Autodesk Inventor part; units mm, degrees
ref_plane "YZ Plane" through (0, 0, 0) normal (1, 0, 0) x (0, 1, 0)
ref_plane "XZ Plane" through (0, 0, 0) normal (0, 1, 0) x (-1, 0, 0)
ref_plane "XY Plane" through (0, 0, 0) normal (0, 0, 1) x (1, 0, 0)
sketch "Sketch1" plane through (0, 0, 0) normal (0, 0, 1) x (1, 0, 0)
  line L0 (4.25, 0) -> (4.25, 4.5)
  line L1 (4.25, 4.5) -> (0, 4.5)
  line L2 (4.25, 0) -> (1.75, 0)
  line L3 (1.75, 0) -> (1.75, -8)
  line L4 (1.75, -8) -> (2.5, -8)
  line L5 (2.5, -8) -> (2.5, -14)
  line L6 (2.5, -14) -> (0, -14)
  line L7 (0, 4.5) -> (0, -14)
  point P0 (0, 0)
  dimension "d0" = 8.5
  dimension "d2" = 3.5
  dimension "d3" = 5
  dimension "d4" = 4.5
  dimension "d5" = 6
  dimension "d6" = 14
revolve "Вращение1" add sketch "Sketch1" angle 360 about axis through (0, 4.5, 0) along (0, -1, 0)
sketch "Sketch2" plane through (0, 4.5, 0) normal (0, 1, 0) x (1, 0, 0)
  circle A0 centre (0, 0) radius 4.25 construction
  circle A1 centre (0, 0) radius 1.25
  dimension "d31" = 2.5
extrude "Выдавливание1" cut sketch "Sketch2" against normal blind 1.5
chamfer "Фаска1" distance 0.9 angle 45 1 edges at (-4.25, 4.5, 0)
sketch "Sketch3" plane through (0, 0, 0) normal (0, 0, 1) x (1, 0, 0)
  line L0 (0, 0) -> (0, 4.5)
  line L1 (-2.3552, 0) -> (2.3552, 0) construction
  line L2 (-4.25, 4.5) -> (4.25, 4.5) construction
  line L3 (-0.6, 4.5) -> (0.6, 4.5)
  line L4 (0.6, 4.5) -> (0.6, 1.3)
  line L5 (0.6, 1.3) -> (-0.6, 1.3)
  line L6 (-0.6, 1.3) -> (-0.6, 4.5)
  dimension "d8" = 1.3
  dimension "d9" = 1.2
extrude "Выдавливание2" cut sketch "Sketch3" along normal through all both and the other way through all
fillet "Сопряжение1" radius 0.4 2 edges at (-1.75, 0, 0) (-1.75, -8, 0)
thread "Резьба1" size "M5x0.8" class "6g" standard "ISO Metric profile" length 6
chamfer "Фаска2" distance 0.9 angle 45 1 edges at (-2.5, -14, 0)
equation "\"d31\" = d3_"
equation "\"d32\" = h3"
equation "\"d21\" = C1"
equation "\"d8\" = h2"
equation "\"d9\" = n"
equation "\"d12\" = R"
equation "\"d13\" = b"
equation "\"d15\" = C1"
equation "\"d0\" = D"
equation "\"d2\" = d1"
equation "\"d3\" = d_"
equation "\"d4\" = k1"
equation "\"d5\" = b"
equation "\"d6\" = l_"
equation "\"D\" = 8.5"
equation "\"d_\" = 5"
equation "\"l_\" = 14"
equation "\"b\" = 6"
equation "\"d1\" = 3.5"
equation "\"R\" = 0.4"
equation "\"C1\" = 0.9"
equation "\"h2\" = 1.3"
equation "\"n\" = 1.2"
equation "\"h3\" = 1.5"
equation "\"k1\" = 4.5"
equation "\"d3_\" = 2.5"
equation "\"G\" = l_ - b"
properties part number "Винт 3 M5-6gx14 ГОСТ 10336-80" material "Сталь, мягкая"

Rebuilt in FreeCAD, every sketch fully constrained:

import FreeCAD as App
import Part
import Sketcher

V = App.Vector


def edges_at(feature, points):
    """Names of the edges that pass closest to the given points."""
    edges = feature.Shape.Edges
    near = lambda p: min(range(len(edges)), key=lambda i: edges[i].distToShape(Part.Vertex(*p))[0])
    return sorted({f"Edge{near(p) + 1}" for p in points})


def add_polygon(sketch, points):
    """Adds a closed chain of lines whose ends are joined by coincident constraints."""
    first, n = sketch.GeometryCount, len(points)
    for a, b in zip(points, points[1:] + points[:1]):
        sketch.addGeometry(Part.LineSegment(App.Vector(*a, 0), App.Vector(*b, 0)), False)
    for i in range(n):
        sketch.addConstraint(Sketcher.Constraint("Coincident", first + i, 2, first + (i + 1) % n, 1))

doc = App.newDocument("Part")
params = doc.addObject("Spreadsheet::Sheet", "Params")
for row, (alias, value) in enumerate([
    ("sketch1_height", "6 mm"),
    ("sketch1_height2", "4.5 mm"),
    ("sketch1_width", "2.5 mm"),
    ("sketch1_width2", "4.25 mm"),
    ("revolution_angle", "360 deg"),
    ("sketch2_diameter", "2.5 mm"),
    ("pocket1_length", "1.5 mm"),
    ("chamfer_size", "0.9 mm"),
    ("sketch3_width", "1.2 mm"),
    ("sketch3_height", "3.2 mm"),
    ("fillet_radius", "0.4 mm"),
    ("chamfer2_size", "0.9 mm"),
], start=1):
    params.set(f"A{row}", alias)
    params.set(f"B{row}", "=" + value)
    params.setAlias(f"B{row}", alias)

body = doc.addObject("PartDesign::Body", "Body")

# Sketch on XY plane
sketch1 = body.newObject("Sketcher::SketchObject", "Sketch")
sketch1.AttachmentSupport = (doc.getObject("XY_Plane"), [""])
sketch1.MapMode = "FlatFace"
add_polygon(sketch1, [(1.75, 0), (4.25, 0), (4.25, 4.5), (0, 4.5), (0, -14), (2.5, -14), (2.5, -8), (1.75, -8)])  # lines 0-7
sketch1.addConstraint(Sketcher.Constraint("Horizontal", 0))
sketch1.addConstraint(Sketcher.Constraint("Vertical", 1))
sketch1.addConstraint(Sketcher.Constraint("Horizontal", 2))
sketch1.addConstraint(Sketcher.Constraint("Vertical", 3))
sketch1.addConstraint(Sketcher.Constraint("Horizontal", 4))
sketch1.addConstraint(Sketcher.Constraint("Vertical", 5))
sketch1.addConstraint(Sketcher.Constraint("Horizontal", 6))
sketch1.addConstraint(Sketcher.Constraint("Vertical", 7))
sketch1.addConstraint(Sketcher.Constraint("PointOnObject", 0, 2, -1))
sketch1.addConstraint(Sketcher.Constraint("PointOnObject", 2, 2, -2))
sketch1.addConstraint(Sketcher.Constraint("Equal", 0, 4))
sketch1.addConstraint(Sketcher.Constraint("DistanceY", 5, 1, 5, 2, 6.0))
sketch1.addConstraint(Sketcher.Constraint("DistanceY", 1, 1, 1, 2, 4.5))
sketch1.addConstraint(Sketcher.Constraint("DistanceY", 3, 2, -1, 1, 14.0))
sketch1.addConstraint(Sketcher.Constraint("DistanceX", 0, 1, 0, 2, 2.5))
sketch1.addConstraint(Sketcher.Constraint("DistanceX", 2, 2, 2, 1, 4.25))
sketch1.setExpression("Constraints[19]", "Params.sketch1_height")
sketch1.setExpression("Constraints[20]", "Params.sketch1_height2")
sketch1.setExpression("Constraints[22]", "Params.sketch1_width")
sketch1.setExpression("Constraints[23]", "Params.sketch1_width2")
revolution = body.newObject("PartDesign::Revolution", "Revolution")
revolution.Profile = sketch1
revolution.ReferenceAxis = (sketch1, ["V_Axis"])
revolution.setExpression("Angle", "Params.revolution_angle")

# Sketch on XZ plane
sketch2 = body.newObject("Sketcher::SketchObject", "Sketch001")
sketch2.AttachmentSupport = (doc.getObject("XZ_Plane"), [""])
sketch2.MapMode = "FlatFace"
sketch2.AttachmentOffset = App.Placement(V(0, 0, -4.5), App.Rotation())
sketch2.addGeometry(Part.Circle(V(0, 0, 0), V(0, 0, 1), 1.25), False)
sketch2.addConstraint(Sketcher.Constraint("Coincident", 0, 3, -1, 1))
sketch2.addConstraint(Sketcher.Constraint("Diameter", 0, 2.5))
sketch2.setExpression("Constraints[1]", "Params.sketch2_diameter")
pocket1 = body.newObject("PartDesign::Pocket", "Pocket")
pocket1.Profile = sketch2
pocket1.setExpression("Length", "Params.pocket1_length")
pocket1.Reversed = True
doc.recompute()

chamfer = body.newObject("PartDesign::Chamfer", "Chamfer")
chamfer.Base = (pocket1, edges_at(pocket1, [(-4.25, 4.5, 0)]))
chamfer.setExpression("Size", "Params.chamfer_size")

# Sketch on XY plane
sketch3 = body.newObject("Sketcher::SketchObject", "Sketch002")
sketch3.AttachmentSupport = (doc.getObject("XY_Plane"), [""])
sketch3.MapMode = "FlatFace"
add_polygon(sketch3, [(-0.6, 1.3), (0.6, 1.3), (0.6, 4.5), (-0.6, 4.5)])  # lines 0-3
sketch3.addConstraint(Sketcher.Constraint("Horizontal", 0))
sketch3.addConstraint(Sketcher.Constraint("Vertical", 1))
sketch3.addConstraint(Sketcher.Constraint("Horizontal", 2))
sketch3.addConstraint(Sketcher.Constraint("Vertical", 3))
sketch3.addConstraint(Sketcher.Constraint("DistanceX", 0, 1, 0, 2, 1.2))
sketch3.addConstraint(Sketcher.Constraint("DistanceY", -1, 1, 0, 2, 1.3))
sketch3.addConstraint(Sketcher.Constraint("DistanceY", 1, 1, 1, 2, 3.2))
sketch3.addConstraint(Sketcher.Constraint("DistanceX", -1, 1, 0, 2, 0.6))
sketch3.setExpression("Constraints[8]", "Params.sketch3_width")
sketch3.setExpression("Constraints[10]", "Params.sketch3_height")
pocket2 = body.newObject("PartDesign::Pocket", "Pocket001")
pocket2.Profile = sketch3
pocket2.Type = "ThroughAll"
pocket2.Midplane = True
doc.recompute()

fillet = body.newObject("PartDesign::Fillet", "Fillet")
fillet.Base = (pocket2, edges_at(pocket2, [(-1.75, 0, 0), (-1.75, -8, 0)]))
fillet.setExpression("Radius", "Params.fillet_radius")
doc.recompute()

chamfer2 = body.newObject("PartDesign::Chamfer", "Chamfer001")
chamfer2.Base = (fillet, edges_at(fillet, [(-2.5, -14, 0)]))
chamfer2.setExpression("Size", "Params.chamfer2_size")

doc.recompute()
